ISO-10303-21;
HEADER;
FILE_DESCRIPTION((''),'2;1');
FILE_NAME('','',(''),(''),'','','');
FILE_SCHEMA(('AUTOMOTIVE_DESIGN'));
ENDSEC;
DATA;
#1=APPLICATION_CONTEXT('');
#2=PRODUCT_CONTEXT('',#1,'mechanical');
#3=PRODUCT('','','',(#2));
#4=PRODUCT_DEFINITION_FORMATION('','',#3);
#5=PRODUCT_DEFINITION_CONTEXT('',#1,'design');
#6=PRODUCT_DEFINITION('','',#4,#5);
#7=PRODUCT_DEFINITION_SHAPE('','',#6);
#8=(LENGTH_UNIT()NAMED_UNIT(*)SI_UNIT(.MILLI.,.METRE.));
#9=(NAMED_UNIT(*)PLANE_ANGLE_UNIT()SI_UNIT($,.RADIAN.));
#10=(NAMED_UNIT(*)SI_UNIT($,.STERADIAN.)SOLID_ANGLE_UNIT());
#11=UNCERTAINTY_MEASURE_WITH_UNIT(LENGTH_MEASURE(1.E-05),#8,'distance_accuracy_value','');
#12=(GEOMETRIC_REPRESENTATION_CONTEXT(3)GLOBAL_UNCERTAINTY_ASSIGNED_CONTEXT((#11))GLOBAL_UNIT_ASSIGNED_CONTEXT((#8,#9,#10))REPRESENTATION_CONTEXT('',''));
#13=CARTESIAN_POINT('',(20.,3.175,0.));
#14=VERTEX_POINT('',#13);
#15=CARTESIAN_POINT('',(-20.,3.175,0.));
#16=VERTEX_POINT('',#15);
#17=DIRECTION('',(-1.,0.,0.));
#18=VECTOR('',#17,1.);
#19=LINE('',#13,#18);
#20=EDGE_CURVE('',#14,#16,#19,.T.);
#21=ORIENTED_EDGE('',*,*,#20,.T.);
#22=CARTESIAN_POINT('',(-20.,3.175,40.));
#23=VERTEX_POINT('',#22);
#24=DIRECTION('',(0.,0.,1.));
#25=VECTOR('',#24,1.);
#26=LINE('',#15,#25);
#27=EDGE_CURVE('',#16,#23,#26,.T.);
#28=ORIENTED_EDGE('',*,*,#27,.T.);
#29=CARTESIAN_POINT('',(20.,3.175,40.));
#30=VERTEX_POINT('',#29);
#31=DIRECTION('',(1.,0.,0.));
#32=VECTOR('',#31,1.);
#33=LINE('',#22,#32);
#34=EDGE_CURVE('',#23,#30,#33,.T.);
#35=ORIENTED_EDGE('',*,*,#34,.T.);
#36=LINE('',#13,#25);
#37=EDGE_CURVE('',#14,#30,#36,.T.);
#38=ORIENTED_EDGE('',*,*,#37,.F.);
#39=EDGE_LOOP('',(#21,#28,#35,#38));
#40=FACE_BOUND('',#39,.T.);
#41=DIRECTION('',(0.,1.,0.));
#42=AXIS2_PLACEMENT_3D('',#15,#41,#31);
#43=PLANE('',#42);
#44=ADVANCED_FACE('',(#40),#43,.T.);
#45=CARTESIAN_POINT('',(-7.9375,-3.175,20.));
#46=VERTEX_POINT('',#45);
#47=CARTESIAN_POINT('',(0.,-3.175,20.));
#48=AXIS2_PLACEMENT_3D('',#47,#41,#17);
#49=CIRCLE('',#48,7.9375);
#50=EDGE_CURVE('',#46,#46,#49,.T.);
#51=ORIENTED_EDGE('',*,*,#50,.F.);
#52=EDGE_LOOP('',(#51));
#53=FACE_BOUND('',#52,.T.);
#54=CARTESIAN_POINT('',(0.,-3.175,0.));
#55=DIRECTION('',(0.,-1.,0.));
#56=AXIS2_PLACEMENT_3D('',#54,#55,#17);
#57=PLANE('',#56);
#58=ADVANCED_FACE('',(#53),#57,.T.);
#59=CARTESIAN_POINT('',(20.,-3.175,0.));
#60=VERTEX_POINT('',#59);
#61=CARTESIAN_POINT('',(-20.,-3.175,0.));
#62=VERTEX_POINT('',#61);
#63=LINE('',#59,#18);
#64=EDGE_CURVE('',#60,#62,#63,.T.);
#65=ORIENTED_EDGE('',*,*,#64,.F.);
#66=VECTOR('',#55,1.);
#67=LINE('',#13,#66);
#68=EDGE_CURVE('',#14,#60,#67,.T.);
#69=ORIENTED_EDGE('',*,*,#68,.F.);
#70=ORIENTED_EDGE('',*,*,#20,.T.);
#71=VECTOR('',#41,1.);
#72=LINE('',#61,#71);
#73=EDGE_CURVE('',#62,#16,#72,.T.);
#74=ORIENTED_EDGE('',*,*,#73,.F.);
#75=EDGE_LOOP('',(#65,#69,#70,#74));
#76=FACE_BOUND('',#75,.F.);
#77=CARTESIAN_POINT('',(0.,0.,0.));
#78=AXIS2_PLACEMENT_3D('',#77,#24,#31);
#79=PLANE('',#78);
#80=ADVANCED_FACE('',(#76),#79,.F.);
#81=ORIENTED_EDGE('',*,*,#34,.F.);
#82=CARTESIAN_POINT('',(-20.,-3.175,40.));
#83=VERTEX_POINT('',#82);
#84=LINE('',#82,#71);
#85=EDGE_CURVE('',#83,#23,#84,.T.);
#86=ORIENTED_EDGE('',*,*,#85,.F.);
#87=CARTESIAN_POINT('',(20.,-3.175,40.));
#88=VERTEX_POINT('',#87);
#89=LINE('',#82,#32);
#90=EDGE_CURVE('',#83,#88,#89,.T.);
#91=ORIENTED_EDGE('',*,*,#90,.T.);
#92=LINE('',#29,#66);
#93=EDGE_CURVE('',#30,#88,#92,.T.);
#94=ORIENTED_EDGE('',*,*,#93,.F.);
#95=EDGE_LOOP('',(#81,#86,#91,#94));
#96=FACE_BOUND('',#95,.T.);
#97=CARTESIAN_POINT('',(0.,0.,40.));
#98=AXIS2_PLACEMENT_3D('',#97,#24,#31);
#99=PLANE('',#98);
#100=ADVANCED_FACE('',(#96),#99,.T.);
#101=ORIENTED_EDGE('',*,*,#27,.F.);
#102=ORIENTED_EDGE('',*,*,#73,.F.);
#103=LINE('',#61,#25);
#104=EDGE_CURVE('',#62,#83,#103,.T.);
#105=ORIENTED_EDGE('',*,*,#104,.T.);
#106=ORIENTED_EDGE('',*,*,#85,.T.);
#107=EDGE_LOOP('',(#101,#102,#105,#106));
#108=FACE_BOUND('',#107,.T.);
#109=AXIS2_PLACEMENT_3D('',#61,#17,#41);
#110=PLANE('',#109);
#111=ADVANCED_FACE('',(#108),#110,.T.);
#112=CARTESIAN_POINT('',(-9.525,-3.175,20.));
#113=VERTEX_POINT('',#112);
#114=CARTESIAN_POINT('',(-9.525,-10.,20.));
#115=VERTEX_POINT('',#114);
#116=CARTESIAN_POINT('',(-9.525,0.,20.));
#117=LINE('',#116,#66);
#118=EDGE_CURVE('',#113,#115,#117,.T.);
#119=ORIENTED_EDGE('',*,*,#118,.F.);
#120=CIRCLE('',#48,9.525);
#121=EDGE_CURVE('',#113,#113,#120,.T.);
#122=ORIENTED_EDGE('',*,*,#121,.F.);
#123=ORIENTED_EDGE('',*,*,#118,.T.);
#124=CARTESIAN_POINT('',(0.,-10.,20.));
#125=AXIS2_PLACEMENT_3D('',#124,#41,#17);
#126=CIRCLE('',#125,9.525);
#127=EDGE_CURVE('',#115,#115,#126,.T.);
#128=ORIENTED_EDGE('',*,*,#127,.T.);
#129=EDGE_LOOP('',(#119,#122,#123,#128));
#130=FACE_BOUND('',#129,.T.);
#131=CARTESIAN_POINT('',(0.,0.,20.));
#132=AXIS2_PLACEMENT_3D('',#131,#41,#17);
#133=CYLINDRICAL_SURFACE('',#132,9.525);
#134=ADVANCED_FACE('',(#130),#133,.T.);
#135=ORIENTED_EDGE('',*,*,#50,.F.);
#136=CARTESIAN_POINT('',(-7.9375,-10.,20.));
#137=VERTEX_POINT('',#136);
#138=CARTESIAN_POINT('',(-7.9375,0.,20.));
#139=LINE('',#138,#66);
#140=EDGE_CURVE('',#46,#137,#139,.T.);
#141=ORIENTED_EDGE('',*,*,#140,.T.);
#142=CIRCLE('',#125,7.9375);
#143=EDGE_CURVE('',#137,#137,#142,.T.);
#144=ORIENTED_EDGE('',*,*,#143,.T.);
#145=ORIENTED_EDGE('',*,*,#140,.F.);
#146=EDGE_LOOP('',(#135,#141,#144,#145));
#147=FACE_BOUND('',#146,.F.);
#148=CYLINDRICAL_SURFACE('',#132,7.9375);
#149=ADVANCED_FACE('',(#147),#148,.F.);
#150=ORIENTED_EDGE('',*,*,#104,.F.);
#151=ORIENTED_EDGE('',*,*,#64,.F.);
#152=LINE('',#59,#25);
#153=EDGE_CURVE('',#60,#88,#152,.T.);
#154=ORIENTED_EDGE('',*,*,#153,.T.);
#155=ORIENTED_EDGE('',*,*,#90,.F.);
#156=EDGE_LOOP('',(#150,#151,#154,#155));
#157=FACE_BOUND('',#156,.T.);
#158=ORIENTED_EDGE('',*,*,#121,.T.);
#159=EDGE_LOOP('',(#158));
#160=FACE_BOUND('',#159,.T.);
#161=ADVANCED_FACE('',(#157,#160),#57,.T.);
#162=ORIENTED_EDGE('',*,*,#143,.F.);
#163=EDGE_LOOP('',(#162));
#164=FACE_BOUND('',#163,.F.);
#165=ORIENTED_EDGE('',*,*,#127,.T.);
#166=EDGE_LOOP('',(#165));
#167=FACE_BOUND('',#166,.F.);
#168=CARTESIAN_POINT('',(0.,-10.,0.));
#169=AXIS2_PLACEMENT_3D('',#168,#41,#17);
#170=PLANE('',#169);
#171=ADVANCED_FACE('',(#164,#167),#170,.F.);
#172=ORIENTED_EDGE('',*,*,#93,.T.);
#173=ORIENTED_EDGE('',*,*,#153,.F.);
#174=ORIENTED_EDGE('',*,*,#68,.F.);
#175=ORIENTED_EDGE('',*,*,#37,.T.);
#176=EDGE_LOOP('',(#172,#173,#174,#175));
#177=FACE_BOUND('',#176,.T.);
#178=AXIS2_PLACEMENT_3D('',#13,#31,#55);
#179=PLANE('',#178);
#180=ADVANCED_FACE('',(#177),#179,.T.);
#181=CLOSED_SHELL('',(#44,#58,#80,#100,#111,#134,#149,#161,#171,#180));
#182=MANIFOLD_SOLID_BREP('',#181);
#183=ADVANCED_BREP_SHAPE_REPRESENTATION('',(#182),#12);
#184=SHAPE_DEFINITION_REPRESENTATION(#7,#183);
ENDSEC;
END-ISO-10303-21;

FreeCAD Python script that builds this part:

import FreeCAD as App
import Part
import Sketcher
from FreeCAD import Vector
Q = App.Units.Quantity

doc = App.newDocument("Part")
body = doc.addObject("PartDesign::Body", "Body")

sketch1 = body.newObject("Sketcher::SketchObject", "Sketch")
sketch1.AttachmentSupport = (doc.getObject("XY_Plane"), [""])
sketch1.MapMode = "FlatFace"
sketch1.addGeometry(Part.LineSegment(Vector(-20, 3, 0), Vector(-20, -3, 0)), False)
sketch1.addGeometry(Part.LineSegment(Vector(-20, -3, 0), Vector(20, -3, 0)), False)
sketch1.addGeometry(Part.LineSegment(Vector(20, -3, 0), Vector(20, 3, 0)), False)
sketch1.addGeometry(Part.LineSegment(Vector(20, 3, 0), Vector(-20, 3, 0)), False)
sketch1.addConstraint(Sketcher.Constraint("Coincident", 0, 2, 1, 1))
sketch1.addConstraint(Sketcher.Constraint("Coincident", 1, 2, 2, 1))
sketch1.addConstraint(Sketcher.Constraint("Coincident", 2, 2, 3, 1))
sketch1.addConstraint(Sketcher.Constraint("Coincident", 3, 2, 0, 1))
sketch1.addConstraint(Sketcher.Constraint("Vertical", 0))
sketch1.addConstraint(Sketcher.Constraint("Horizontal", 1))
sketch1.addConstraint(Sketcher.Constraint("Vertical", 2))
sketch1.addConstraint(Sketcher.Constraint("Horizontal", 3))
sketch1.addConstraint(Sketcher.Constraint("Symmetric", 0, 2, 2, 2, -1, 1))
sketch1.addConstraint(Sketcher.Constraint("DistanceX", 1, 1, 1, 2, Q("1.5748 in")))
sketch1.addConstraint(Sketcher.Constraint("DistanceY", 0, 2, 0, 1, Q("0.25 in")))
pad1 = body.newObject("PartDesign::Pad", "Pad")
pad1.Profile = sketch1
pad1.Length = Q("1.5748031 in")

sketch2 = body.newObject("Sketcher::SketchObject", "Sketch001")
sketch2.AttachmentSupport = (doc.getObject("XZ_Plane"), [""])
sketch2.MapMode = "FlatFace"
sketch2.addGeometry(Part.Circle(Vector(0, 20, 0), Vector(0, 0, 1), 10), False)
sketch2.addGeometry(Part.Circle(Vector(0, 20, 0), Vector(0, 0, 1), 8), False)
sketch2.addConstraint(Sketcher.Constraint("Coincident", 1, 3, 0, 3))
sketch2.addConstraint(Sketcher.Constraint("PointOnObject", 0, 3, -2))
sketch2.addConstraint(Sketcher.Constraint("Diameter", 1, Q("0.625 in")))
sketch2.addConstraint(Sketcher.Constraint("Diameter", 0, Q("0.75 in")))
sketch2.addConstraint(Sketcher.Constraint("DistanceY", -1, 1, 0, 3, Q("0.7874 in")))
pad2 = body.newObject("PartDesign::Pad", "Pad001")
pad2.Profile = sketch2
pad2.Length = Q("0.3937008 in")

doc.recompute()
